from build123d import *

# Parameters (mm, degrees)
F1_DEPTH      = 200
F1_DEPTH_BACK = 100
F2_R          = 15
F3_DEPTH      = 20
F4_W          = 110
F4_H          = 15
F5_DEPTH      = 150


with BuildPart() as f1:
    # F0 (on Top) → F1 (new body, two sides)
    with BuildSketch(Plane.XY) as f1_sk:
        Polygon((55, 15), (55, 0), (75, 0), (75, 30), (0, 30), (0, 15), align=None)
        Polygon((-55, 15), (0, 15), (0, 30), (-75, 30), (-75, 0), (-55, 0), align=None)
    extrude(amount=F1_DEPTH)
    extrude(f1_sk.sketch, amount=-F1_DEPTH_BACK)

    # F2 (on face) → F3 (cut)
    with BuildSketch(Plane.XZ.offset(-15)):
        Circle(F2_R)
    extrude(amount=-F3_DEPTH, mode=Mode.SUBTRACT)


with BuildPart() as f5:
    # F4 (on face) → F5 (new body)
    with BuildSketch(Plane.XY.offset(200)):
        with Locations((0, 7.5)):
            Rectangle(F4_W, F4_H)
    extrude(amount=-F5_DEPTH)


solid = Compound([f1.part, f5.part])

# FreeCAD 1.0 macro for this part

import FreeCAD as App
import Part
import Sketcher
from FreeCAD import Vector
Q = App.Units.Quantity


def add_polygon(sketch, points):
    """Adds a closed chain of lines whose ends are joined by coincident constraints."""
    first, n = sketch.GeometryCount, len(points)
    for a, b in zip(points, points[1:] + points[:1]):
        sketch.addGeometry(Part.LineSegment(App.Vector(*a, 0), App.Vector(*b, 0)), False)
    for i in range(n):
        sketch.addConstraint(Sketcher.Constraint("Coincident", first + i, 2, first + (i + 1) % n, 1))

doc = App.newDocument("Part")
body = doc.addObject("PartDesign::Body", "Body")

# Sketch on XY plane
sketch1 = body.newObject("Sketcher::SketchObject", "Sketch")
sketch1.AttachmentSupport = (doc.getObject("XY_Plane"), [""])
sketch1.MapMode = "FlatFace"
add_polygon(sketch1, [(55, 15), (55, 0), (75, 0), (75, 30), (-75, 30), (-75, 0), (-55, 0), (-55, 15)])  # lines 0-7
sketch1.addConstraint([
    Sketcher.Constraint("Vertical", 0),
    Sketcher.Constraint("Horizontal", 1),
    Sketcher.Constraint("Vertical", 2),
    Sketcher.Constraint("Horizontal", 3),
    Sketcher.Constraint("Vertical", 4),
    Sketcher.Constraint("Horizontal", 5),
    Sketcher.Constraint("Vertical", 6),
    Sketcher.Constraint("Horizontal", 7),
    Sketcher.Constraint("Symmetric", 1, 2, 4, 2, -1, 1),
    Sketcher.Constraint("Symmetric", 0, 2, 5, 2, -2),
    Sketcher.Constraint("DistanceX", 1, 1, 1, 2, Q("20 mm")),
    Sketcher.Constraint("DistanceX", 3, 2, 3, 1, Q("150 mm")),
    Sketcher.Constraint("DistanceY", 0, 2, 0, 1, Q("15 mm")),
    Sketcher.Constraint("DistanceY", 2, 1, 2, 2, Q("30 mm")),
])
pad1 = body.newObject("PartDesign::Pad", "Pad")
pad1.Profile = sketch1
pad1.Type = "TwoLengths"
pad1.Length = 200
pad1.Length2 = 100

# Sketch on XZ plane
sketch2 = body.newObject("Sketcher::SketchObject", "Sketch001")
sketch2.AttachmentSupport = (doc.getObject("XZ_Plane"), [""])
sketch2.MapMode = "FlatFace"
sketch2.AttachmentOffset = App.Placement(Vector(0, 0, -15), App.Rotation())
sketch2.addGeometry(Part.Circle(Vector(0, 0, 0), Vector(0, 0, 1), 15), False)
sketch2.addConstraint([
    Sketcher.Constraint("Coincident", 0, 3, -1, 1),
    Sketcher.Constraint("Diameter", 0, Q("30 mm")),
])
pocket1 = body.newObject("PartDesign::Pocket", "Pocket")
pocket1.Profile = sketch2
pocket1.Length = 20
body2 = doc.addObject("PartDesign::Body", "Body001")

# Sketch on XY plane
sketch3 = body2.newObject("Sketcher::SketchObject", "Sketch002")
sketch3.AttachmentSupport = (doc.getObject("XY_Plane001"), [""])
sketch3.MapMode = "FlatFace"
sketch3.AttachmentOffset = App.Placement(Vector(0, 0, 200), App.Rotation())
add_polygon(sketch3, [(-55, 15), (-55, 0), (55, 0), (55, 15)])  # lines 0-3
sketch3.addConstraint([
    Sketcher.Constraint("Vertical", 0),
    Sketcher.Constraint("Horizontal", 1),
    Sketcher.Constraint("Vertical", 2),
    Sketcher.Constraint("Horizontal", 3),
    Sketcher.Constraint("Symmetric", 0, 2, 1, 2, -1, 1),
    Sketcher.Constraint("DistanceX", 1, 1, 1, 2, Q("110 mm")),
    Sketcher.Constraint("DistanceY", 0, 2, 0, 1, Q("15 mm")),
])
pad2 = body2.newObject("PartDesign::Pad", "Pad001")
pad2.Profile = sketch3
pad2.Length = 150
pad2.Reversed = True

doc.recompute()
